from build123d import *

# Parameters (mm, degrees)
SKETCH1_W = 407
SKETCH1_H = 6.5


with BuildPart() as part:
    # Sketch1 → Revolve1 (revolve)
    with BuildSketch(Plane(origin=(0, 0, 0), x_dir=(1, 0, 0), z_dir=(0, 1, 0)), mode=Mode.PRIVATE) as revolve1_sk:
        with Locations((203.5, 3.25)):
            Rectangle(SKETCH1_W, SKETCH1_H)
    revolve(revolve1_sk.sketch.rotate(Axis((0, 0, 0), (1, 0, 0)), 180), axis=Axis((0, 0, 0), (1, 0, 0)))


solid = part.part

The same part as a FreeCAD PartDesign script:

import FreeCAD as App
import Part
import Sketcher

doc = App.newDocument("Part")
params = doc.addObject("Spreadsheet::Sheet", "Params")
for row, (alias, value) in enumerate([
    ("sketch1_width", "407 mm"),
    ("sketch1_height", "6.5 mm"),
    ("revolution_angle", "360 deg"),
], start=1):
    params.set(f"A{row}", alias)
    params.set(f"B{row}", "=" + value)
    params.setAlias(f"B{row}", alias)

body = doc.addObject("PartDesign::Body", "Body")

# Sketch on XZ plane
sketch1 = doc.addObject("Sketcher::SketchObject", "Sketch")
body.addObject(sketch1)
sketch1.AttachmentSupport = (doc.XZ_Plane, [""])
sketch1.MapMode = "FlatFace"
sketch1.addGeometry(Part.LineSegment(App.Vector(0, -6, 0), App.Vector(0, 0, 0)), False)
sketch1.addGeometry(Part.LineSegment(App.Vector(0, 0, 0), App.Vector(407, 0, 0)), False)
sketch1.addGeometry(Part.LineSegment(App.Vector(407, 0, 0), App.Vector(407, -6, 0)), False)
sketch1.addGeometry(Part.LineSegment(App.Vector(407, -6, 0), App.Vector(0, -6, 0)), False)
sketch1.addConstraint(Sketcher.Constraint("Coincident", 0, 2, 1, 1))
sketch1.addConstraint(Sketcher.Constraint("Coincident", 1, 2, 2, 1))
sketch1.addConstraint(Sketcher.Constraint("Coincident", 2, 2, 3, 1))
sketch1.addConstraint(Sketcher.Constraint("Coincident", 3, 2, 0, 1))
sketch1.addConstraint(Sketcher.Constraint("Vertical", 0))
sketch1.addConstraint(Sketcher.Constraint("Horizontal", 1))
sketch1.addConstraint(Sketcher.Constraint("Vertical", 2))
sketch1.addConstraint(Sketcher.Constraint("Horizontal", 3))
sketch1.addConstraint(Sketcher.Constraint("Coincident", 0, 2, -1, 1))
sketch1.addConstraint(Sketcher.Constraint("DistanceX", 1, 1, 1, 2, 407.0))
sketch1.addConstraint(Sketcher.Constraint("DistanceY", 0, 1, 0, 2, 6.5))
sketch1.setExpression("Constraints[9]", "Params.sketch1_width")
sketch1.setExpression("Constraints[10]", "Params.sketch1_height")
revolution = doc.addObject("PartDesign::Revolution", "Revolution")
body.addObject(revolution)
revolution.Profile = sketch1
revolution.ReferenceAxis = (sketch1, ["H_Axis"])
revolution.setExpression("Angle", "Params.revolution_angle")

doc.recompute()
